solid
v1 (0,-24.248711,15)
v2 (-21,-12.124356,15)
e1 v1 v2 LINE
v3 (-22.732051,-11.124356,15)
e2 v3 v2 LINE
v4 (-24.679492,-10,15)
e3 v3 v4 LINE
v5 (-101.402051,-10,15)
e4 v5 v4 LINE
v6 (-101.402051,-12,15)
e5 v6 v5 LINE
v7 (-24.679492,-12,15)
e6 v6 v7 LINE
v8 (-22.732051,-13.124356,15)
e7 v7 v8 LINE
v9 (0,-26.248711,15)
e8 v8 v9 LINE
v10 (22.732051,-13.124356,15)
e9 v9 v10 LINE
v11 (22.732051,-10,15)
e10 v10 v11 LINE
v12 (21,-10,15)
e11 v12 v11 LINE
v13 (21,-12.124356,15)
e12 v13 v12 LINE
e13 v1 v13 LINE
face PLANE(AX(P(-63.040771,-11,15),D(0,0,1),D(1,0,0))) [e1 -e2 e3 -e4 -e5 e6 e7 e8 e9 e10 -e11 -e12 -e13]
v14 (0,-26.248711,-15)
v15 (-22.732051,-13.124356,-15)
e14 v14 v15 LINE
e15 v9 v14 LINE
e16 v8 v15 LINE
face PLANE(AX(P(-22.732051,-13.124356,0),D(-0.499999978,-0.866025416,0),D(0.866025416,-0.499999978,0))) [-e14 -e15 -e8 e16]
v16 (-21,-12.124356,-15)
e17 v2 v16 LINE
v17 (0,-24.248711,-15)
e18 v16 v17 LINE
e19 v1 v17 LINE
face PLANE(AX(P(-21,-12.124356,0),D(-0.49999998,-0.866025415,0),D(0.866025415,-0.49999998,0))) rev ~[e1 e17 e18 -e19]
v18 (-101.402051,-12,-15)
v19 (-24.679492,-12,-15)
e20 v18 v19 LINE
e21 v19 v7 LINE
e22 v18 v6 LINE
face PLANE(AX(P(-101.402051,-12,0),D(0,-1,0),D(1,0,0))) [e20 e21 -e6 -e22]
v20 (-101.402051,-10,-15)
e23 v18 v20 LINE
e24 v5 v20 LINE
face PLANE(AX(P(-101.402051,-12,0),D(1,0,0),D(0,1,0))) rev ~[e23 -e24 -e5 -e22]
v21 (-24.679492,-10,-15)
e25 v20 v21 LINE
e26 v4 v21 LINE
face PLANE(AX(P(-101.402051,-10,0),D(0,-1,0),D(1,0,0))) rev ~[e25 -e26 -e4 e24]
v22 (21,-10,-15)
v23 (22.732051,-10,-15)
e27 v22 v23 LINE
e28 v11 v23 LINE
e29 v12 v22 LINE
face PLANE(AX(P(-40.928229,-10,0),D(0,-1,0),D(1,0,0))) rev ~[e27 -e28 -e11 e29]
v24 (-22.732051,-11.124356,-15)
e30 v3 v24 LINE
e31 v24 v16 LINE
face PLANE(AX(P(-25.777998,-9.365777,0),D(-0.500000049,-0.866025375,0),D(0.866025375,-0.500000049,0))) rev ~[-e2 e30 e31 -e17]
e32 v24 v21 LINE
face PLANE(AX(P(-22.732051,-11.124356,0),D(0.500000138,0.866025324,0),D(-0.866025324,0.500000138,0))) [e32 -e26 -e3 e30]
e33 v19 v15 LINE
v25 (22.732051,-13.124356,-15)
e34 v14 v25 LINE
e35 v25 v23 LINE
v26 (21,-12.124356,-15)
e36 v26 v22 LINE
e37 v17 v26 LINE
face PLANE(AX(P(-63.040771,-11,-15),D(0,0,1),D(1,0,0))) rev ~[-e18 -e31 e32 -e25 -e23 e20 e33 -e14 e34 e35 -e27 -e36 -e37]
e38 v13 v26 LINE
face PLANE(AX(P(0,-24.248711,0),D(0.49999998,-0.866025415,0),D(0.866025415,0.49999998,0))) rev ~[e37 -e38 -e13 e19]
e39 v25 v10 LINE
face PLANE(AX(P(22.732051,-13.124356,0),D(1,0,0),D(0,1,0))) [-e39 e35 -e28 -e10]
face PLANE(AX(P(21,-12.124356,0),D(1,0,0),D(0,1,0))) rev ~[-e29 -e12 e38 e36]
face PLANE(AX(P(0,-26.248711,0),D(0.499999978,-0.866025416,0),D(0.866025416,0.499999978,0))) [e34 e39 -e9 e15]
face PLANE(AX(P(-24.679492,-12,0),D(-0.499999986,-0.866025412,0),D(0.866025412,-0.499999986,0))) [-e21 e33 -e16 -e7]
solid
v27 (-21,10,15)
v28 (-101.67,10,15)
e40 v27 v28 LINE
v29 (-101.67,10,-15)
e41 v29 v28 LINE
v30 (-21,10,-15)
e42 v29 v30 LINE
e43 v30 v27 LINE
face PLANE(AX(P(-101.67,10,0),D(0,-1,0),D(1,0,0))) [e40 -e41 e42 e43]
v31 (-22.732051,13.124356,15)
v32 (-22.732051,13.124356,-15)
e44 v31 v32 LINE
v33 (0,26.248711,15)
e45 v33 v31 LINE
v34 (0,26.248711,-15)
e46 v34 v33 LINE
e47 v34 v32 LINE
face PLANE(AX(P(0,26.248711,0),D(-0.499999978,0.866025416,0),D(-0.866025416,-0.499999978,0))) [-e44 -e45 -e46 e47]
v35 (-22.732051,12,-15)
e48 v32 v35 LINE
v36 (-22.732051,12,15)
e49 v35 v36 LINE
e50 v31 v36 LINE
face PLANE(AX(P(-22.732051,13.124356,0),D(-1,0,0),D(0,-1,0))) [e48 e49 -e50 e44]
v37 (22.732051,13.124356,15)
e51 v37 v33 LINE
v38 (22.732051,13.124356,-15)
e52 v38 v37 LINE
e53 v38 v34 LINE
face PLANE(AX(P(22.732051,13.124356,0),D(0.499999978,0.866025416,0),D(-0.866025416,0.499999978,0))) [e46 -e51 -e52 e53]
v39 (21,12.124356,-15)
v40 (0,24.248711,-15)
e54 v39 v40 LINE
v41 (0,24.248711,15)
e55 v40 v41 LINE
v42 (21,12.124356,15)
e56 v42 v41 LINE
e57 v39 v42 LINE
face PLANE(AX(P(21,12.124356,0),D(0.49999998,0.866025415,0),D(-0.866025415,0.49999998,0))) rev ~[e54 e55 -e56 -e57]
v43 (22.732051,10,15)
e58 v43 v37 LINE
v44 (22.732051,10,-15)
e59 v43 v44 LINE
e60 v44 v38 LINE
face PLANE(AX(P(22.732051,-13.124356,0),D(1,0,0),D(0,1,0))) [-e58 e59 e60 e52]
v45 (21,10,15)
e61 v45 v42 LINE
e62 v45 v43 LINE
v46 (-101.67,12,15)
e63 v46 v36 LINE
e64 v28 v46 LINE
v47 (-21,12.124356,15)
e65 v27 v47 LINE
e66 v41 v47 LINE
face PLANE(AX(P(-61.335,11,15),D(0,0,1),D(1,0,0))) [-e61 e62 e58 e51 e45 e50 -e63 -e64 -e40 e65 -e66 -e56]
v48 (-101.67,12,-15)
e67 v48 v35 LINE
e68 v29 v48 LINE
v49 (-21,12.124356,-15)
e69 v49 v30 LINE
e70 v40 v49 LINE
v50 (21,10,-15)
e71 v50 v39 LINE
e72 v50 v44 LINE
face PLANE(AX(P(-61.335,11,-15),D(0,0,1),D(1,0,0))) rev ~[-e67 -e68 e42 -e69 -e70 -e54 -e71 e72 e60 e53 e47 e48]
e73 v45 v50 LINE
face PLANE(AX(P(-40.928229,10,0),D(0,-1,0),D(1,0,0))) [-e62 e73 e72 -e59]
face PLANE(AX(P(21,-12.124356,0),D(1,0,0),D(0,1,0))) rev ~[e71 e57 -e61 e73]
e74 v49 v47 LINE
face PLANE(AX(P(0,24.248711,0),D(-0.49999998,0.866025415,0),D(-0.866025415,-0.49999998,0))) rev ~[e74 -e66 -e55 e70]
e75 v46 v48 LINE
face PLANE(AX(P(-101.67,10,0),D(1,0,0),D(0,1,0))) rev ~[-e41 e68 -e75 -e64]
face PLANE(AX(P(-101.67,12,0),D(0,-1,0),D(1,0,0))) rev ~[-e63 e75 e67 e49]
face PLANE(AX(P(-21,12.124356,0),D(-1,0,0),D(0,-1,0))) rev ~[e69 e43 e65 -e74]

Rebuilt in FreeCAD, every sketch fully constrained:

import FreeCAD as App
import Part
import Sketcher

V = App.Vector
Q = App.Units.Quantity

doc = App.newDocument("Part")
body = doc.addObject("PartDesign::Body", "Body")

sketch1 = body.newObject("Sketcher::SketchObject", "Sketch")
sketch1.AttachmentSupport = (doc.getObject("XY_Plane"), [""])
sketch1.MapMode = "FlatFace"
sketch1.addGeometry([
    Part.LineSegment(V(21, -12.124356, 0), V(21, 12.124356, 0)),
    Part.LineSegment(V(21, 12.124356, 0), V(0, 24.248711, 0)),
    Part.LineSegment(V(0, 24.248711, 0), V(-21, 12.124356, 0)),
    Part.LineSegment(V(-21, 12.124356, 0), V(-21, -12.124356, 0)),
    Part.LineSegment(V(-21, -12.124356, 0), V(0, -24.248711, 0)),
    Part.LineSegment(V(0, -24.248711, 0), V(21, -12.124356, 0)),
], False)
sketch1.addConstraint([
    Sketcher.Constraint("Coincident", 0, 2, 1, 1),
    Sketcher.Constraint("Coincident", 1, 2, 2, 1),
    Sketcher.Constraint("Coincident", 2, 2, 3, 1),
    Sketcher.Constraint("Coincident", 3, 2, 4, 1),
    Sketcher.Constraint("Coincident", 4, 2, 5, 1),
    Sketcher.Constraint("Coincident", 5, 2, 0, 1),
    Sketcher.Constraint("Vertical", 0),
    Sketcher.Constraint("Vertical", 3),
    Sketcher.Constraint("Symmetric", 0, 2, 3, 2, -1, 1),
    Sketcher.Constraint("Symmetric", 1, 2, 4, 2, -1, 1),
    Sketcher.Constraint("PointOnObject", 1, 2, -2),
    Sketcher.Constraint("Parallel", 2, 5),
    Sketcher.Constraint("Horizontal", 0, 2, 2, 2),
    Sketcher.Constraint("Angle", 1, Q("150.000001 deg")),
    Sketcher.Constraint("DistanceX", -1, 1, 0, 2, Q("21 mm")),
    Sketcher.Constraint("DistanceY", 0, 1, 0, 2, Q("24.248712 mm")),
])
pad1 = body.newObject("PartDesign::Pad", "Pad")
pad1.Profile = sketch1
pad1.Length = 50
pad1.Midplane = True
body2 = doc.addObject("PartDesign::Body", "Body001")
body2.AllowCompound = True

sketch2 = body2.newObject("Sketcher::SketchObject", "Sketch001")
sketch2.AttachmentSupport = (doc.getObject("XY_Plane001"), [""])
sketch2.MapMode = "FlatFace"
sketch2.addGeometry([
    Part.LineSegment(V(0, -26.248711, 0), V(22.732051, -13.124356, 0)),
    Part.LineSegment(V(22.732051, -13.124356, 0), V(22.732051, 13.124356, 0)),
    Part.LineSegment(V(22.732051, 13.124356, 0), V(0, 26.248711, 0)),
    Part.LineSegment(V(0, 26.248711, 0), V(-22.732051, 13.124356, 0)),
    Part.LineSegment(V(-22.732051, 13.124356, 0), V(-22.732051, -13.124356, 0)),
    Part.LineSegment(V(-22.732051, -13.124356, 0), V(0, -26.248711, 0)),
], False)
sketch2.addConstraint([
    Sketcher.Constraint("Coincident", 0, 2, 1, 1),
    Sketcher.Constraint("Coincident", 1, 2, 2, 1),
    Sketcher.Constraint("Coincident", 2, 2, 3, 1),
    Sketcher.Constraint("Coincident", 3, 2, 4, 1),
    Sketcher.Constraint("Coincident", 4, 2, 5, 1),
    Sketcher.Constraint("Coincident", 5, 2, 0, 1),
    Sketcher.Constraint("Vertical", 1),
    Sketcher.Constraint("Vertical", 4),
    Sketcher.Constraint("Symmetric", 0, 2, 3, 2, -1, 1),
    Sketcher.Constraint("Symmetric", 2, 2, 5, 2, -1, 1),
    Sketcher.Constraint("PointOnObject", 2, 2, -2),
    Sketcher.Constraint("Parallel", 2, 5),
    Sketcher.Constraint("Horizontal", 1, 2, 3, 2),
    Sketcher.Constraint("Angle", 0, Q("29.999999 deg")),
    Sketcher.Constraint("DistanceX", 3, 2, 1, 2, Q("45.464102 mm")),
    Sketcher.Constraint("DistanceY", 1, 1, 1, 2, Q("26.248712 mm")),
])
pad2 = body2.newObject("PartDesign::Pad", "Pad001")
pad2.Profile = sketch2
pad2.Length = 30
pad2.Midplane = True
doc.recompute()

boolean = body2.newObject("PartDesign::Boolean", "Boolean")
boolean.Type = "Cut"
boolean.addObjects([body])

sketch3 = body2.newObject("Sketcher::SketchObject", "Sketch002")
sketch3.AttachmentSupport = (doc.getObject("XY_Plane001"), [""])
sketch3.MapMode = "FlatFace"
sketch3.addGeometry([
    Part.LineSegment(V(-40.928229, 10, 0), V(-40.928229, -10, 0)),
    Part.LineSegment(V(-40.928229, -10, 0), V(40.928229, -10, 0)),
    Part.LineSegment(V(40.928229, -10, 0), V(40.928229, 10, 0)),
    Part.LineSegment(V(40.928229, 10, 0), V(-40.928229, 10, 0)),
], False)
sketch3.addConstraint([
    Sketcher.Constraint("Coincident", 0, 2, 1, 1),
    Sketcher.Constraint("Coincident", 1, 2, 2, 1),
    Sketcher.Constraint("Coincident", 2, 2, 3, 1),
    Sketcher.Constraint("Coincident", 3, 2, 0, 1),
    Sketcher.Constraint("Vertical", 0),
    Sketcher.Constraint("Horizontal", 1),
    Sketcher.Constraint("Vertical", 2),
    Sketcher.Constraint("Horizontal", 3),
    Sketcher.Constraint("Symmetric", 0, 2, 2, 2, -1, 1),
    Sketcher.Constraint("DistanceY", 0, 2, 0, 1, Q("20 mm")),
    Sketcher.Constraint("DistanceX", 1, 1, 1, 2, Q("81.856458 mm")),
])
pocket1 = body2.newObject("PartDesign::Pocket", "Pocket")
pocket1.Profile = sketch3
pocket1.Length = 30
pocket1.Midplane = True

sketch4 = body2.newObject("Sketcher::SketchObject", "Sketch003")
sketch4.AttachmentSupport = (doc.getObject("XY_Plane001"), [""])
sketch4.MapMode = "FlatFace"
sketch4.addGeometry([
    Part.LineSegment(V(-101.402051, -10, 0), V(-101.402051, -12, 0)),
    Part.LineSegment(V(-101.402051, -12, 0), V(-24.679492, -12, 0)),
    Part.LineSegment(V(-24.679492, -12, 0), V(-13.486716, -18.462152, 0)),
    Part.LineSegment(V(-13.486716, -18.462152, 0), V(-12.640724, -16.950586, 0)),
    Part.LineSegment(V(-12.640724, -16.950586, 0), V(-22.732051, -11.124356, 0)),
    Part.LineSegment(V(-22.732051, -11.124356, 0), V(-24.679492, -10, 0)),
    Part.LineSegment(V(-24.679492, -10, 0), V(-101.402051, -10, 0)),
], False)
sketch4.addConstraint([
    Sketcher.Constraint("Coincident", 0, 2, 1, 1),
    Sketcher.Constraint("Coincident", 1, 2, 2, 1),
    Sketcher.Constraint("Coincident", 2, 2, 3, 1),
    Sketcher.Constraint("Coincident", 3, 2, 4, 1),
    Sketcher.Constraint("Coincident", 4, 2, 5, 1),
    Sketcher.Constraint("Coincident", 5, 2, 6, 1),
    Sketcher.Constraint("Coincident", 6, 2, 0, 1),
    Sketcher.Constraint("Vertical", 0),
    Sketcher.Constraint("Horizontal", 1),
    Sketcher.Constraint("Horizontal", 6),
    Sketcher.Constraint("Parallel", 2, 4),
    Sketcher.Constraint("Parallel", 4, 5),
    Sketcher.Constraint("Vertical", 1, 2, 5, 2),
    Sketcher.Constraint("DistanceY", 0, 2, 0, 1, Q("2 mm")),
    Sketcher.Constraint("Angle", 2, Q("-29.999999 deg")),
    Sketcher.Constraint("DistanceY", 0, 2, -1, 1, Q("12 mm")),
    Sketcher.Constraint("DistanceX", 0, 2, 4, 2, Q("78.67 mm")),
    Sketcher.Constraint("DistanceX", 1, 1, 1, 2, Q("76.722559 mm")),
    Sketcher.Constraint("Distance", 4, Q("11.652461 mm")),
    Sketcher.Constraint("DistanceX", 0, 2, -1, 1, Q("101.402051 mm")),
    Sketcher.Constraint("DistanceY", 2, 2, -1, 1, Q("18.462152 mm")),
])
pad3 = body2.newObject("PartDesign::Pad", "Pad002")
pad3.Profile = sketch4
pad3.Length = 30
pad3.Midplane = True

sketch5 = body2.newObject("Sketcher::SketchObject", "Sketch004")
sketch5.AttachmentSupport = (doc.getObject("XY_Plane001"), [""])
sketch5.MapMode = "FlatFace"
sketch5.addGeometry([
    Part.LineSegment(V(-25.777998, -9.365777, 0), V(-19.458776, -13.014182, 0)),
    Part.LineSegment(V(-19.458776, -13.014182, 0), V(-18.305326, -9.365777, 0)),
    Part.LineSegment(V(-18.305326, -9.365777, 0), V(-25.777998, -9.365777, 0)),
], False)
sketch5.addConstraint([
    Sketcher.Constraint("Coincident", 0, 2, 1, 1),
    Sketcher.Constraint("Coincident", 1, 2, 2, 1),
    Sketcher.Constraint("Coincident", 2, 2, 0, 1),
    Sketcher.Constraint("Horizontal", 2),
    Sketcher.Constraint("Angle", 0, Q("-30.000003 deg")),
    Sketcher.Constraint("DistanceX", 2, 2, -1, 1, Q("25.777998 mm")),
    Sketcher.Constraint("DistanceX", 2, 2, 2, 1, Q("7.472672 mm")),
    Sketcher.Constraint("Distance", 0, Q("7.296809 mm")),
    Sketcher.Constraint("DistanceY", 0, 2, -1, 1, Q("13.014182 mm")),
])
pocket2 = body2.newObject("PartDesign::Pocket", "Pocket001")
pocket2.Profile = sketch5
pocket2.Length = 30
pocket2.Midplane = True

sketch6 = body2.newObject("Sketcher::SketchObject", "Sketch005")
sketch6.AttachmentSupport = (doc.getObject("XY_Plane001"), [""])
sketch6.MapMode = "FlatFace"
sketch6.addGeometry([
    Part.LineSegment(V(-101.67, 12, 0), V(-101.67, 10, 0)),
    Part.LineSegment(V(-101.67, 10, 0), V(-21, 10, 0)),
    Part.LineSegment(V(-21, 10, 0), V(-21, 12, 0)),
    Part.LineSegment(V(-21, 12, 0), V(-101.67, 12, 0)),
], False)
sketch6.addConstraint([
    Sketcher.Constraint("Coincident", 0, 2, 1, 1),
    Sketcher.Constraint("Coincident", 1, 2, 2, 1),
    Sketcher.Constraint("Coincident", 2, 2, 3, 1),
    Sketcher.Constraint("Coincident", 3, 2, 0, 1),
    Sketcher.Constraint("Vertical", 0),
    Sketcher.Constraint("Horizontal", 1),
    Sketcher.Constraint("Vertical", 2),
    Sketcher.Constraint("Horizontal", 3),
    Sketcher.Constraint("DistanceY", 0, 2, 0, 1, Q("2 mm")),
    Sketcher.Constraint("DistanceY", -1, 1, 0, 2, Q("10 mm")),
    Sketcher.Constraint("DistanceX", 1, 2, -1, 1, Q("21 mm")),
    Sketcher.Constraint("DistanceX", 1, 1, 1, 2, Q("80.67 mm")),
])
pad4 = body2.newObject("PartDesign::Pad", "Pad003")
pad4.Profile = sketch6
pad4.Length = 30
pad4.Midplane = True

doc.recompute()
